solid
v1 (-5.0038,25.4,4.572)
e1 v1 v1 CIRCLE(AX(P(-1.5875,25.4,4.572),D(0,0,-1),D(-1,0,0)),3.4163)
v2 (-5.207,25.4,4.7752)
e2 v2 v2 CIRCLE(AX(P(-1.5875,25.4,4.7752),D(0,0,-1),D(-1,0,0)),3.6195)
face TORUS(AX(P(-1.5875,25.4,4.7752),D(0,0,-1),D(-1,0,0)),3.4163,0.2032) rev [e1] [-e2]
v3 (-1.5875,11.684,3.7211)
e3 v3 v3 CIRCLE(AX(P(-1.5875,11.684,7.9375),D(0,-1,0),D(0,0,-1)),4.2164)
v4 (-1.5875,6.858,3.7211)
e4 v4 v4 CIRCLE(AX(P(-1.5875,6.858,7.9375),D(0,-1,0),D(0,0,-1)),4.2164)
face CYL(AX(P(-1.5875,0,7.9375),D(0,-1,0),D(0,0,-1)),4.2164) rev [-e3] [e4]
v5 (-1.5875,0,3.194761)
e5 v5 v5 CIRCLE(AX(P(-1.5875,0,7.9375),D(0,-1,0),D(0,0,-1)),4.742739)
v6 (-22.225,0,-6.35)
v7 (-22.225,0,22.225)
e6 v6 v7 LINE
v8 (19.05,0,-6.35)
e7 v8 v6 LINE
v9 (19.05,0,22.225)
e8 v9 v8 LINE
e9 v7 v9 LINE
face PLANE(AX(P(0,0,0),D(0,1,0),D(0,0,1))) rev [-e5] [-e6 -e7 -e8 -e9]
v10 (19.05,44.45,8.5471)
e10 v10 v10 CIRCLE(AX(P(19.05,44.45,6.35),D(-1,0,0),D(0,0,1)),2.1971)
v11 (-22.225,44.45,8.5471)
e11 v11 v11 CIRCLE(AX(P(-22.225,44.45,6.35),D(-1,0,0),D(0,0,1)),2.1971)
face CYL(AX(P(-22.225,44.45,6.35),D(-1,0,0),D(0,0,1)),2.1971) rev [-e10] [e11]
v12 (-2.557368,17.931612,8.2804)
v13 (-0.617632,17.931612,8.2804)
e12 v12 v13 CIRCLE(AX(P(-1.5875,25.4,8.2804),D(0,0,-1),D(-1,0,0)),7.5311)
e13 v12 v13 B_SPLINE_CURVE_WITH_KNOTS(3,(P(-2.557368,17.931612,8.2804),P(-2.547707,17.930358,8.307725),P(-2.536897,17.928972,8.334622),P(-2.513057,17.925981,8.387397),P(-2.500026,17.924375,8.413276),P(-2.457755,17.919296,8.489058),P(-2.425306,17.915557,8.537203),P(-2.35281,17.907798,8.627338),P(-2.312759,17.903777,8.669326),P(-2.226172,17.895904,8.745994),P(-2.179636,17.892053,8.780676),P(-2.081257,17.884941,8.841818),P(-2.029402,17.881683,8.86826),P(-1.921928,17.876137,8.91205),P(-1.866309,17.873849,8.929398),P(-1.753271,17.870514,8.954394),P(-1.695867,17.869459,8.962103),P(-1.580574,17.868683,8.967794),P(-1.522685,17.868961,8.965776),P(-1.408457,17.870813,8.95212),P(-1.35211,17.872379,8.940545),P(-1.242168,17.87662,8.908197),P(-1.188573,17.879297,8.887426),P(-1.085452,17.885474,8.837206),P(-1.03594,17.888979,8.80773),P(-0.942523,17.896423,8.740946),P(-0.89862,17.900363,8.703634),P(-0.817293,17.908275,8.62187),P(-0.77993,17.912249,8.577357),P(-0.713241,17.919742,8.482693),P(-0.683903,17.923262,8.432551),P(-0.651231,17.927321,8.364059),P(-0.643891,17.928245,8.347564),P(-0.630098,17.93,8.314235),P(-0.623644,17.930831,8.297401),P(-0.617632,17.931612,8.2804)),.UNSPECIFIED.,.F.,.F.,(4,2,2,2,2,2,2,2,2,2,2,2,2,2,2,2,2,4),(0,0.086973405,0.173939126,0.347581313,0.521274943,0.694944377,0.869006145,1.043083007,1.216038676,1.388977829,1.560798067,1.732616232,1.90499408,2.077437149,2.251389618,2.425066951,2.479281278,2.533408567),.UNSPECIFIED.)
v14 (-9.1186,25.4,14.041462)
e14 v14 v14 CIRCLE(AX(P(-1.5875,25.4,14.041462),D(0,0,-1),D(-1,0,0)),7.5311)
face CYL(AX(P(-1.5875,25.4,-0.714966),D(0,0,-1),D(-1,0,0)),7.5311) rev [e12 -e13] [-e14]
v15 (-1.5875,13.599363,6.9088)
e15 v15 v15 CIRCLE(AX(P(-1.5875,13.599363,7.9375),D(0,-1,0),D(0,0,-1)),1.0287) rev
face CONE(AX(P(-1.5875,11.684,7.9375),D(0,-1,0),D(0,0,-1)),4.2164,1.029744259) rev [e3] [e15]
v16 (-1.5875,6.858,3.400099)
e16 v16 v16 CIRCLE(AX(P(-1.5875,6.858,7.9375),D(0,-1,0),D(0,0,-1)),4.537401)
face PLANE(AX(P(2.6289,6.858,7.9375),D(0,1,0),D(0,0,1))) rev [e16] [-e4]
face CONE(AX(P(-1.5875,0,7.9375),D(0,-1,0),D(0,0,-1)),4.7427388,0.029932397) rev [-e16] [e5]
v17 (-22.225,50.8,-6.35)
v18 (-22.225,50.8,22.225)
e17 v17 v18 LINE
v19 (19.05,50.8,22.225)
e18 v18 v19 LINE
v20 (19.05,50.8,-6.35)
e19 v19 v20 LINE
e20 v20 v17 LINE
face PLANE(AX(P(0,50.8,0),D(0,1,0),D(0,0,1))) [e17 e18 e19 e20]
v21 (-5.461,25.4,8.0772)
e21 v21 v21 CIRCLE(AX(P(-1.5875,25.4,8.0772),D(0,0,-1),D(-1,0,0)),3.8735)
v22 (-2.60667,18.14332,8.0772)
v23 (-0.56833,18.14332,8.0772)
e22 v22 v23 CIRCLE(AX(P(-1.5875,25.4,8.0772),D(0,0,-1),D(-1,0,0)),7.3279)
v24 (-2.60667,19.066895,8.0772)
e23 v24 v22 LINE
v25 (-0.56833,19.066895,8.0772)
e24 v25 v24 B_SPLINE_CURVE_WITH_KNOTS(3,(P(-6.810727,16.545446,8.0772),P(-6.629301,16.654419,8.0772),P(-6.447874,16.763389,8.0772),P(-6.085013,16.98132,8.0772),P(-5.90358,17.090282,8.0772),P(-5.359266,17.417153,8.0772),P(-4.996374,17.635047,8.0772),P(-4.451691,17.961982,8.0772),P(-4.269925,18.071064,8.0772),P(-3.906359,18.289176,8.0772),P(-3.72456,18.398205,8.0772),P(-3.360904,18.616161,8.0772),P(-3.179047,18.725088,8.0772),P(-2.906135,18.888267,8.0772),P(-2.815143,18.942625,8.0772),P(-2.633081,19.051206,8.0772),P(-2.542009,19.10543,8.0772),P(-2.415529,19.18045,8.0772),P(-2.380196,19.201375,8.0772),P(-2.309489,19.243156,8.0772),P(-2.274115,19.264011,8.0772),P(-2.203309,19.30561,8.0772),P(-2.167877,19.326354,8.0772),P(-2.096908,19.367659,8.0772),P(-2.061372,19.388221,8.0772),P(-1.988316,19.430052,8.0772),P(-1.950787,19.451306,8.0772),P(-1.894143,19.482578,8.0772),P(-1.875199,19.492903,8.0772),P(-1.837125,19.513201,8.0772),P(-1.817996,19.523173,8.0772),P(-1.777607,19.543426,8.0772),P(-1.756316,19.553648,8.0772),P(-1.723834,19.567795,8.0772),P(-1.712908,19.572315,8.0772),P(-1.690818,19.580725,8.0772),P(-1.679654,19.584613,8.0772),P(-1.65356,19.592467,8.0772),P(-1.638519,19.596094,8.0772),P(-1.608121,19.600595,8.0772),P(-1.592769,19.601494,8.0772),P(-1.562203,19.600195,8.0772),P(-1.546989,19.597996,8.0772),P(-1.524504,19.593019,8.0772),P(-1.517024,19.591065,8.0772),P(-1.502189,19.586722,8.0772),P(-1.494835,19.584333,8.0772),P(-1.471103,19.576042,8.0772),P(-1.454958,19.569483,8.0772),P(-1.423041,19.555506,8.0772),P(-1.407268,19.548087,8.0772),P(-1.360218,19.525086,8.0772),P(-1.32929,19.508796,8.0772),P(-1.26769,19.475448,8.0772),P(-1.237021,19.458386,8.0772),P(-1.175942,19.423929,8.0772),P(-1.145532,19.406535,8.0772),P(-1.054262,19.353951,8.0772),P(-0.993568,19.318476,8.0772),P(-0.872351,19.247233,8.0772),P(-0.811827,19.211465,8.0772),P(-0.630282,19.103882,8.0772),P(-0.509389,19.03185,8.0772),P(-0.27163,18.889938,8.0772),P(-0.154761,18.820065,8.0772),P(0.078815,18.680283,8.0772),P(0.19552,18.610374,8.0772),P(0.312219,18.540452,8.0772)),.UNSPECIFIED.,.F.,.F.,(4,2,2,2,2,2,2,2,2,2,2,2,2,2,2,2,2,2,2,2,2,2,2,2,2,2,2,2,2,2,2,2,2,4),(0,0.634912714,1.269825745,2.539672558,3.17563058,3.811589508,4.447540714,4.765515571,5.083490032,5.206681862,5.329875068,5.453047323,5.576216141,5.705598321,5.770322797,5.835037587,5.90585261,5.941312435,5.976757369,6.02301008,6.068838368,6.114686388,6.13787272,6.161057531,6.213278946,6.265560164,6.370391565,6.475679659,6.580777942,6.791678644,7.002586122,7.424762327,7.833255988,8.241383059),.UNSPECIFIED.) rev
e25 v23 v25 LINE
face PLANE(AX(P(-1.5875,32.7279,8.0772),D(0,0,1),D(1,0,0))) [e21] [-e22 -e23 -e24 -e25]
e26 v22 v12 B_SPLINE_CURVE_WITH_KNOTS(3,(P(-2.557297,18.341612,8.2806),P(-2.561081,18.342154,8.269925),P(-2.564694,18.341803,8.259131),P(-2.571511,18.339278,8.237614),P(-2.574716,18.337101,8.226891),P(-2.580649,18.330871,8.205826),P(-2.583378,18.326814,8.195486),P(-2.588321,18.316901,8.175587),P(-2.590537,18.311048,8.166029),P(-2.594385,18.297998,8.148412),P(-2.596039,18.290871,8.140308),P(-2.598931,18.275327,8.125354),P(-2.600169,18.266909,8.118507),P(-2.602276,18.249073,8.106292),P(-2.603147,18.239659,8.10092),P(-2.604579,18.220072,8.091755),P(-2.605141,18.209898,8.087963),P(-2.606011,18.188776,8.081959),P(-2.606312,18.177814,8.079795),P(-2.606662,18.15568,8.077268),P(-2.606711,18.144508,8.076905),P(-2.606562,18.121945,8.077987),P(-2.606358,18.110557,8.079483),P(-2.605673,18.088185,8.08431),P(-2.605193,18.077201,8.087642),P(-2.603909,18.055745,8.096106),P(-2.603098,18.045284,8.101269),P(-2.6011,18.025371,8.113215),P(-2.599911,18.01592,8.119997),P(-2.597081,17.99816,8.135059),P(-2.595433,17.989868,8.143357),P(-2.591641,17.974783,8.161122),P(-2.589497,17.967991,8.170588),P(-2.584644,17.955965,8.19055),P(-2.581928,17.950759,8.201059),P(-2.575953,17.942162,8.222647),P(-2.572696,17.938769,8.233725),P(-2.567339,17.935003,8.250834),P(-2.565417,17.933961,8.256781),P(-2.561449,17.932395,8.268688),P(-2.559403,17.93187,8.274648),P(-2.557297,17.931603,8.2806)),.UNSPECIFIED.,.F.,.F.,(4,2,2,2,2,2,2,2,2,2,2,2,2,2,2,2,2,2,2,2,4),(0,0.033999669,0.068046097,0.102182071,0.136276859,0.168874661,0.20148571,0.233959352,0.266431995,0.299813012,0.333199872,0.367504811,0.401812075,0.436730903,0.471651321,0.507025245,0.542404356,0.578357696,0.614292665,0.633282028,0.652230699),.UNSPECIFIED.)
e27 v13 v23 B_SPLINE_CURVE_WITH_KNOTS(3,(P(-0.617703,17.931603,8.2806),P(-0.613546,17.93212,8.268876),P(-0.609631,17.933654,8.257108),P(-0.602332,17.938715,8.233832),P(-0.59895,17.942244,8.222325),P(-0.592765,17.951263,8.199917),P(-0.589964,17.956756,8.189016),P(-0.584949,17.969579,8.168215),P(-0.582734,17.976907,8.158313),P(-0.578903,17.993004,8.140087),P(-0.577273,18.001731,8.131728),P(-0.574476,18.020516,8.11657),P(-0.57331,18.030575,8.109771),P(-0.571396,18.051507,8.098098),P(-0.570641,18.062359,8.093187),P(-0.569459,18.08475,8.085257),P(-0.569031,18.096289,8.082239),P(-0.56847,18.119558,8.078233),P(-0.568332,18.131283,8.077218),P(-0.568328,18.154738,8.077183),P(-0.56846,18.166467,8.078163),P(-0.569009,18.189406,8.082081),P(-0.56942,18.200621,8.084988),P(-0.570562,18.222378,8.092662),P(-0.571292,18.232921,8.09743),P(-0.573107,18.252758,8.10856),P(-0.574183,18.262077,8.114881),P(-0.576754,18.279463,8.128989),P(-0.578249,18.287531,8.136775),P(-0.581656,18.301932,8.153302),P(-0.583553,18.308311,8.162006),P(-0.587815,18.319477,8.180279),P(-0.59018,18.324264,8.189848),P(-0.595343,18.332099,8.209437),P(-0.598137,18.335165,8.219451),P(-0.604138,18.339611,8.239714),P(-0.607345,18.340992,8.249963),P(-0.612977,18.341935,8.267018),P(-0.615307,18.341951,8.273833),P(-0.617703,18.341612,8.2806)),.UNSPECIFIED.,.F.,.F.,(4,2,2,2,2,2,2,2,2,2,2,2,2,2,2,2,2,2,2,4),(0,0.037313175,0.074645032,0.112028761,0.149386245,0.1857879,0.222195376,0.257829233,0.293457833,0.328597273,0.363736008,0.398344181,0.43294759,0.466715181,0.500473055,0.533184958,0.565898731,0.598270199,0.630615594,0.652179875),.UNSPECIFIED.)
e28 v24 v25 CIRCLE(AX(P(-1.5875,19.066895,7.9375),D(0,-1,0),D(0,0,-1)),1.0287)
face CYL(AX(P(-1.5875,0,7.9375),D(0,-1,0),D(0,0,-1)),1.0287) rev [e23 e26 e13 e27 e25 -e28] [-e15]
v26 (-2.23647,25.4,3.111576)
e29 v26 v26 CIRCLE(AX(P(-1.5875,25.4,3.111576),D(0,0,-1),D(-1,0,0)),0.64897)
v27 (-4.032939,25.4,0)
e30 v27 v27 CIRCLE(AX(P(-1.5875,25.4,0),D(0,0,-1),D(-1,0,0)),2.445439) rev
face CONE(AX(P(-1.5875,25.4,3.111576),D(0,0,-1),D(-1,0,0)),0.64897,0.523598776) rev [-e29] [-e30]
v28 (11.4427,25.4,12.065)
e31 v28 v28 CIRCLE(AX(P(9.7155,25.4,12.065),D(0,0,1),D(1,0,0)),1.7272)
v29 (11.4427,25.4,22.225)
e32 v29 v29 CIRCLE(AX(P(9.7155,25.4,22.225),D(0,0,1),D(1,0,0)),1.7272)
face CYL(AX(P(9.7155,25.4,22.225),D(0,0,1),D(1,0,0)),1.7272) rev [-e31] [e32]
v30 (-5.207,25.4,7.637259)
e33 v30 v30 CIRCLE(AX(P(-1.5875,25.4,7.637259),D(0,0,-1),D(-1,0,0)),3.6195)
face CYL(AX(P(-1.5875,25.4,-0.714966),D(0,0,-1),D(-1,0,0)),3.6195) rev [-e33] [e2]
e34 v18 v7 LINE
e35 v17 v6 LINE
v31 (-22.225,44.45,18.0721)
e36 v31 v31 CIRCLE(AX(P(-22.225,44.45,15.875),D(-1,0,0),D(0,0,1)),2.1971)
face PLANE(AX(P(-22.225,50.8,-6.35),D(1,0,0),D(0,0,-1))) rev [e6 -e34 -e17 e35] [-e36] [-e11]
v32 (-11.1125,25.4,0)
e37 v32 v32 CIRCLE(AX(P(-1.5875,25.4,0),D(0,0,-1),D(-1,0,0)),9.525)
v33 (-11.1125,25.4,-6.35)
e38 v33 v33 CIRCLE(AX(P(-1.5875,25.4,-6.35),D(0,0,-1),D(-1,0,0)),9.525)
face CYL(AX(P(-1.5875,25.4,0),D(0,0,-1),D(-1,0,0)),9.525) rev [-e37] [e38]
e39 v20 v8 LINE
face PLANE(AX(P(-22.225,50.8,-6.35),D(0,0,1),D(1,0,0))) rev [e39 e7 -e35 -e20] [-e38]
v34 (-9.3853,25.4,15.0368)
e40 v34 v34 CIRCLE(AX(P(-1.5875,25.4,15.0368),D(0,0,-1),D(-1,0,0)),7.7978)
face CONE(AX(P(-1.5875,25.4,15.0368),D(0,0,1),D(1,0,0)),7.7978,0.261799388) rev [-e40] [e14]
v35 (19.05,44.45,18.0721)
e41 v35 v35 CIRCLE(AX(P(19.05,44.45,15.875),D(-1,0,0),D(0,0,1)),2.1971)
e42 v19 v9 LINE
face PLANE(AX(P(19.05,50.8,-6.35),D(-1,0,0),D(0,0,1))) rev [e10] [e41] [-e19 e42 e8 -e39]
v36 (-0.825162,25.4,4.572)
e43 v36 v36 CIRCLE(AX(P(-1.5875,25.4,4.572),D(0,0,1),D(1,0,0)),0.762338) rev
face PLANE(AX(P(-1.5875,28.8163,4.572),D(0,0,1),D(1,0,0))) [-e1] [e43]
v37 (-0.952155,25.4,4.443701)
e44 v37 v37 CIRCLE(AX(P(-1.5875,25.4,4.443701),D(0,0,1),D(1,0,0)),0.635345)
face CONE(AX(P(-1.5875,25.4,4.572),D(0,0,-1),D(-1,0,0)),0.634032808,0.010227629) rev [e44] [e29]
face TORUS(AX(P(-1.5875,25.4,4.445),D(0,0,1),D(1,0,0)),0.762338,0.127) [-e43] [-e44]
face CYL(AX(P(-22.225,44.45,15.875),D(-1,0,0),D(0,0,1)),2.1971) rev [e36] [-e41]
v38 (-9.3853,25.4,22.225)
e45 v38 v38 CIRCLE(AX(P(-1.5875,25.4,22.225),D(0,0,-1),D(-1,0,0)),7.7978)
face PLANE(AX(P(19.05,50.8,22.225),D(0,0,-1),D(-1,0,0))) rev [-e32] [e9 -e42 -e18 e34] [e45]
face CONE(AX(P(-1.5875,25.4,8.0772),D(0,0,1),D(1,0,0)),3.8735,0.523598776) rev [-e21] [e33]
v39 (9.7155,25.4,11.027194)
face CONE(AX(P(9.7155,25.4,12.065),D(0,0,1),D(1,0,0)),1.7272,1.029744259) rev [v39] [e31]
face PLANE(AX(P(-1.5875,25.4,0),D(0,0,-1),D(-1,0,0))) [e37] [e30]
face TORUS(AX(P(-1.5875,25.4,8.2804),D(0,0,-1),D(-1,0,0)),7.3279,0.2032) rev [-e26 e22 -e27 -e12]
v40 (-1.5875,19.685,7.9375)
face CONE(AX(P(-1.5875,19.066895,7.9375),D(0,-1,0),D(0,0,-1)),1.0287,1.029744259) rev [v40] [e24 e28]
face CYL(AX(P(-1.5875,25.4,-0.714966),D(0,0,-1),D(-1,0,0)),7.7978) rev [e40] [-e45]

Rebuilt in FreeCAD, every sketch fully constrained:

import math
import FreeCAD as App
import Part
import Sketcher

V = App.Vector
Q = App.Units.Quantity


def edges_at(feature, points):
    """Names of the edges that pass closest to the given points."""
    edges = feature.Shape.Edges
    near = lambda p: min(range(len(edges)), key=lambda i: edges[i].distToShape(Part.Vertex(*p))[0])
    return sorted({f"Edge{near(p) + 1}" for p in points})


def add_polygon(sketch, points):
    """Adds a closed chain of lines whose ends are joined by coincident constraints."""
    first, n = sketch.GeometryCount, len(points)
    for a, b in zip(points, points[1:] + points[:1]):
        sketch.addGeometry(Part.LineSegment(App.Vector(*a, 0), App.Vector(*b, 0)), False)
    for i in range(n):
        sketch.addConstraint(Sketcher.Constraint("Coincident", first + i, 2, first + (i + 1) % n, 1))

doc = App.newDocument("Part")
body = doc.addObject("PartDesign::Body", "Body")

sketch1 = doc.addObject("Sketcher::SketchObject", "Sketch")
body.addObject(sketch1)
sketch1.AttachmentSupport = (doc.XZ_Plane, [""])
sketch1.MapMode = "FlatFace"
add_polygon(sketch1, [(-22, -6), (-22, 22), (19, 22), (19, -6)])
sketch1.addConstraint([
    Sketcher.Constraint("Vertical", 0),
    Sketcher.Constraint("Horizontal", 1),
    Sketcher.Constraint("Vertical", 2),
    Sketcher.Constraint("Horizontal", 3),
    Sketcher.Constraint("DistanceX", 1, 1, 1, 2, Q("1.625 in")),
    Sketcher.Constraint("DistanceY", 0, 1, 0, 2, Q("1.125 in")),
    Sketcher.Constraint("DistanceX", -1, 1, 1, 2, Q("0.75 in")),
    Sketcher.Constraint("DistanceY", 2, 2, -1, 1, Q("0.25 in")),
])
pad1 = doc.addObject("PartDesign::Pad", "Pad")
body.addObject(pad1)
pad1.Profile = sketch1
pad1.Length = Q("2 in")
pad1.Reversed = True

sketch2 = doc.addObject("Sketcher::SketchObject", "Sketch001")
body.addObject(sketch2)
sketch2.AttachmentSupport = (doc.XY_Plane, [""])
sketch2.MapMode = "FlatFace"
sketch2.AttachmentOffset = App.Placement(V(0, 0, -0.25 * 25.4), App.Rotation())
sketch2.addGeometry(Part.Circle(V(-2, 25, 0), V(0, 0, 1), 10), False)
sketch2.addConstraint([
    Sketcher.Constraint("Diameter", 0, Q("0.75 in")),
    Sketcher.Constraint("DistanceY", -1, 1, 0, 3, Q("1 in")),
    Sketcher.Constraint("DistanceX", 0, 3, -1, 1, Q("0.0625 in")),
])
pocket1 = doc.addObject("PartDesign::Pocket", "Pocket")
body.addObject(pocket1)
pocket1.Profile = sketch2
pocket1.Length = Q("0.25 in")
pocket1.Reversed = True

sketch3 = doc.addObject("Sketcher::SketchObject", "Sketch002")
body.addObject(sketch3)
sketch3.AttachmentSupport = (doc.YZ_Plane, [""])
sketch3.MapMode = "FlatFace"
sketch3.AttachmentOffset = App.Placement(V(0, 0, -0.0625 * 25.4), App.Rotation())
sketch3.addGeometry([
    Part.LineSegment(V(25.4, 22.23, 0), V(33.2, 22.23, 0)),
    Part.LineSegment(V(33.2, 22.23, 0), V(33.2, 15.04, 0)),
    Part.LineSegment(V(33.2, 15.04, 0), V(32.93, 14.04, 0)),
    Part.LineSegment(V(32.93, 14.04, 0), V(32.93, 8.28, 0)),
    Part.ArcOfCircle(Part.Circle(V(32.73, 8.28, 0), V(0, 0, 1), 0.2), math.radians(-90), math.radians(0)),
    Part.LineSegment(V(32.73, 8.08, 0), V(29.27, 8.08, 0)),
    Part.LineSegment(V(29.27, 8.08, 0), V(29.02, 7.64, 0)),
    Part.LineSegment(V(29.02, 7.64, 0), V(29.02, 4.78, 0)),
    Part.ArcOfCircle(Part.Circle(V(28.82, 4.78, 0), V(0, 0, 1), 0.2), math.radians(-90), math.radians(0)),
    Part.LineSegment(V(28.82, 4.57, 0), V(26.03, 4.57, 0)),
    Part.LineSegment(V(26.03, 4.57, 0), V(26.05, 3.11, 0)),
    Part.LineSegment(V(26.05, 3.11, 0), V(28.26, -0.71, 0)),
    Part.LineSegment(V(28.26, -0.71, 0), V(25.4, -0.71, 0)),
    Part.LineSegment(V(25.4, -0.71, 0), V(25.4, 22.23, 0)),
], False)
sketch3.addGeometry(Part.LineSegment(V(25.4, -0.71, 0), V(25.4, 22.23, 0)), True)
sketch3.addConstraint([
    Sketcher.Constraint("Coincident", 0, 2, 1, 1),
    Sketcher.Constraint("Coincident", 1, 2, 2, 1),
    Sketcher.Constraint("Coincident", 2, 2, 3, 1),
    Sketcher.Constraint("Tangent", 3, 2, 4, 2),
    Sketcher.Constraint("Tangent", 4, 1, 5, 1),
    Sketcher.Constraint("Coincident", 5, 2, 6, 1),
    Sketcher.Constraint("Coincident", 6, 2, 7, 1),
    Sketcher.Constraint("Tangent", 7, 2, 8, 2),
    Sketcher.Constraint("Tangent", 8, 1, 9, 1),
    Sketcher.Constraint("Coincident", 9, 2, 10, 1),
    Sketcher.Constraint("Coincident", 10, 2, 11, 1),
    Sketcher.Constraint("Coincident", 11, 2, 12, 1),
    Sketcher.Constraint("Coincident", 12, 2, 13, 1),
    Sketcher.Constraint("Coincident", 13, 2, 0, 1),
    Sketcher.Constraint("Horizontal", 0),
    Sketcher.Constraint("Vertical", 1),
    Sketcher.Constraint("Vertical", 3),
    Sketcher.Constraint("Horizontal", 5),
    Sketcher.Constraint("Vertical", 7),
    Sketcher.Constraint("Horizontal", 9),
    Sketcher.Constraint("Horizontal", 12),
    Sketcher.Constraint("Vertical", 13),
    Sketcher.Constraint("Vertical", 14),
    Sketcher.Constraint("Coincident", 14, 1, 12, 2),
    Sketcher.Constraint("Equal", 4, 8),
    Sketcher.Constraint("Horizontal", 0, 2, 14, 2),
    Sketcher.Constraint("DistanceX", -1, 1, 12, 2, Q("1 in")),
    Sketcher.Constraint("Angle", 2, Q("-105 deg")),
    Sketcher.Constraint("Angle", 6, Q("-120 deg")),
    Sketcher.Constraint("Angle", 11, Q("-60 deg")),
    Sketcher.Constraint("Radius", 4, Q("0.008 in")),
    Sketcher.Constraint("Distance", 6, Q("0.02 in")),
    Sketcher.Constraint("DistanceX", 0, 1, 0, 2, Q("0.307 in")),
    Sketcher.Constraint("DistanceX", 5, 2, 5, 1, Q("0.136 in")),
    Sketcher.Constraint("DistanceY", 1, 2, 1, 1, Q("0.283 in")),
    Sketcher.Constraint("DistanceY", -1, 1, 8, 1, Q("0.18 in")),
    Sketcher.Constraint("DistanceY", 8, 3, 4, 1, Q("0.13 in")),
    Sketcher.Constraint("DistanceY", -1, 1, 0, 2, Q("0.875 in")),
    Sketcher.Constraint("Distance", 10, Q("0.0575 in")),
    Sketcher.Constraint("DistanceX", -1, 1, 4, 3, Q("1.2885 in")),
    Sketcher.Constraint("Distance", 11, Q("4.418511 mm")),
    Sketcher.Constraint("DistanceX", 9, 2, 9, 1, Q("2.782267 mm")),
    Sketcher.Constraint("DistanceX", 12, 2, 12, 1, Q("2.858226 mm")),
])
groove = doc.addObject("PartDesign::Groove", "Groove")
body.addObject(groove)
groove.Profile = sketch3
groove.ReferenceAxis = (sketch3, ["Axis0"])
groove.Angle = 360
doc.recompute()

fillet = doc.addObject("PartDesign::Fillet", "Fillet")
body.addObject(fillet)
fillet.Base = (groove, edges_at(groove, [(-1.587, 24.766, 4.572)]))
fillet.Radius = Q("0.005 in")

sketch4 = doc.addObject("Sketcher::SketchObject", "Sketch003")
body.addObject(sketch4)
sketch4.AttachmentSupport = (doc.XY_Plane, [""])
sketch4.MapMode = "FlatFace"
sketch4.AttachmentOffset = App.Placement(V(0, 0, 0.875 * 25.4), App.Rotation())
sketch4.addGeometry(Part.Circle(V(9.7, 25.4, 0), V(0, 0, 1), 1.7), False)
sketch4.addConstraint([
    Sketcher.Constraint("Diameter", 0, Q("0.136 in")),
    Sketcher.Constraint("DistanceY", -1, 1, 0, 3, Q("1 in")),
    Sketcher.Constraint("DistanceX", -1, 1, 0, 3, Q("0.3825 in")),
])
doc.recompute()
hole = doc.addObject("PartDesign::Hole", "Hole")
body.addObject(hole)
hole.Profile = sketch4
hole.ThreadType = "None"
hole.Diameter = Q("0.136 in")
hole.DepthType = "Dimension"
hole.Depth = Q("0.4 in")
hole.DrillPoint = "Angled"
hole.DrillPointAngle = 118

sketch5 = doc.addObject("Sketcher::SketchObject", "Sketch004")
body.addObject(sketch5)
sketch5.AttachmentSupport = (doc.YZ_Plane, [""])
sketch5.MapMode = "FlatFace"
sketch5.AttachmentOffset = App.Placement(V(0, 0, -0.0625 * 25.4), App.Rotation())
add_polygon(sketch5, [(14.22, 7.94), (0, 7.94), (0, 3.19), (6.86, 3.4), (6.86, 3.72), (11.68, 3.72)])
sketch5.addGeometry(Part.LineSegment(V(0, 7.94, 0), V(14.22, 7.94, 0)), True)
sketch5.addConstraint([
    Sketcher.Constraint("Horizontal", 0),
    Sketcher.Constraint("Vertical", 1),
    Sketcher.Constraint("Vertical", 3),
    Sketcher.Constraint("Horizontal", 4),
    Sketcher.Constraint("Horizontal", 6),
    Sketcher.Constraint("Coincident", 6, 1, 0, 2),
    Sketcher.Constraint("PointOnObject", 0, 2, -2),
    Sketcher.Constraint("Equal", 0, 6),
    Sketcher.Constraint("Angle", 5, Q("59 deg")),
    Sketcher.Constraint("DistanceX", 4, 1, 4, 2, Q("0.19 in")),
    Sketcher.Constraint("DistanceX", -1, 1, 2, 2, Q("0.27 in")),
    Sketcher.Constraint("DistanceY", -1, 1, 0, 2, Q("0.3125 in")),
    Sketcher.Constraint("DistanceY", 3, 2, 0, 2, Q("0.166 in")),
    Sketcher.Constraint("DistanceY", 3, 1, 3, 2, Q("0.321001 mm")),
    Sketcher.Constraint("DistanceY", 1, 2, 1, 1, Q("4.742739 mm")),
])
groove2 = doc.addObject("PartDesign::Groove", "Groove001")
body.addObject(groove2)
groove2.Profile = sketch5
groove2.ReferenceAxis = (sketch5, ["Axis0"])
groove2.Angle = 360

sketch6 = doc.addObject("Sketcher::SketchObject", "Sketch005")
body.addObject(sketch6)
sketch6.AttachmentSupport = (doc.YZ_Plane, [""])
sketch6.MapMode = "FlatFace"
sketch6.AttachmentOffset = App.Placement(V(0, 0, -0.875 * 25.4), App.Rotation())
sketch6.addGeometry([
    Part.Circle(V(44.5, 6.3, 0), V(0, 0, 1), 2.2),
    Part.Circle(V(44.5, 15.9, 0), V(0, 0, 1), 2.2),
], False)
sketch6.addConstraint([
    Sketcher.Constraint("Equal", 0, 1),
    Sketcher.Constraint("Vertical", 0, 3, 1, 3),
    Sketcher.Constraint("Diameter", 0, Q("0.173 in")),
    Sketcher.Constraint("DistanceX", -1, 1, 0, 3, Q("1.75 in")),
    Sketcher.Constraint("DistanceY", -1, 1, 0, 3, Q("0.25 in")),
    Sketcher.Constraint("DistanceY", -1, 1, 1, 3, Q("0.625 in")),
])
doc.recompute()
hole2 = doc.addObject("PartDesign::Hole", "Hole001")
body.addObject(hole2)
hole2.Profile = sketch6
hole2.ThreadType = "None"
hole2.Diameter = Q("0.173 in")
hole2.DepthType = "ThroughAll"
hole2.Reversed = True

sketch7 = doc.addObject("Sketcher::SketchObject", "Sketch006")
body.addObject(sketch7)
sketch7.AttachmentSupport = (doc.XZ_Plane, [""])
sketch7.MapMode = "FlatFace"
sketch7.addGeometry(Part.Circle(V(-1.6, 7.9, 0), V(0, 0, 1), 1), False)
sketch7.addConstraint([
    Sketcher.Constraint("Diameter", 0, Q("0.081 in")),
    Sketcher.Constraint("DistanceX", 0, 3, -1, 1, Q("0.0625 in")),
    Sketcher.Constraint("DistanceY", -1, 1, 0, 3, Q("0.3125 in")),
])
doc.recompute()
hole3 = doc.addObject("PartDesign::Hole", "Hole002")
body.addObject(hole3)
hole3.Profile = sketch7
hole3.ThreadType = "None"
hole3.Diameter = Q("0.081 in")
hole3.DepthType = "Dimension"
hole3.Depth = 19.066895
hole3.DrillPoint = "Angled"
hole3.DrillPointAngle = 118

doc.recompute()
